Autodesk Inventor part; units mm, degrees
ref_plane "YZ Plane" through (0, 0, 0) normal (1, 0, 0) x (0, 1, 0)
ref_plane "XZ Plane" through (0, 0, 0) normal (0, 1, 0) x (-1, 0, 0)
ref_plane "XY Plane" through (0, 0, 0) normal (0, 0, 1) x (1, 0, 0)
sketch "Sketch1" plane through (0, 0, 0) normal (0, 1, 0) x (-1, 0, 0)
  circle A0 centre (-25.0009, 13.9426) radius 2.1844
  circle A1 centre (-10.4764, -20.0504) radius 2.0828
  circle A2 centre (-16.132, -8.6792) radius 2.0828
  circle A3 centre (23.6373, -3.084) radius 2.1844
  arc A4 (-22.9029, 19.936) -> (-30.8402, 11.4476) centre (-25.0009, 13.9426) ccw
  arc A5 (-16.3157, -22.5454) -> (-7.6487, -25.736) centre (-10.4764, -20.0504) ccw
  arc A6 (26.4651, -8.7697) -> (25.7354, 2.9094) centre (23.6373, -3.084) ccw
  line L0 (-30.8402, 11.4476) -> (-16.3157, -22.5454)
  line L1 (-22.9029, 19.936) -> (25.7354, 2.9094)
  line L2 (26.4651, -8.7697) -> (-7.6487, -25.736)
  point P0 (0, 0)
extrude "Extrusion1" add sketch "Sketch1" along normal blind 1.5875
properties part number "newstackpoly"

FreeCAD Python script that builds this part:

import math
import FreeCAD as App
import Part
import Sketcher
Q = App.Units.Quantity

doc = App.newDocument("Part")
params = doc.addObject("Spreadsheet::Sheet", "Params")
for row, (alias, value) in enumerate([
    ("sketch1_radius", "0.25 in"),
    ("sketch1_diameter", "0.164 in"),
    ("sketch1_diameter2", "0.172 in"),
    ("sketch1_length", "1.5 in"),
    ("pad1_length", "0.0625 in"),
], start=1):
    params.set(f"A{row}", alias)
    params.set(f"B{row}", "=" + value)
    params.setAlias(f"B{row}", alias)

body = doc.addObject("PartDesign::Body", "Body")

sketch1 = body.newObject("Sketcher::SketchObject", "Sketch")
sketch1.AttachmentSupport = (doc.getObject("XZ_Plane"), [""])
sketch1.MapMode = "FlatFace"
sketch1.addGeometry(Part.LineSegment(App.Vector(-25.7, 2.9, 0), App.Vector(22.9, 19.9, 0)), False)
sketch1.addGeometry(Part.ArcOfCircle(Part.Circle(App.Vector(25, 13.9, 0), App.Vector(0, 0, 1), 6.3), math.radians(-23), math.radians(109)), False)
sketch1.addGeometry(Part.LineSegment(App.Vector(30.8, 11.4, 0), App.Vector(16.3, -22.5, 0)), False)
sketch1.addGeometry(Part.ArcOfCircle(Part.Circle(App.Vector(10.5, -20.1, 0), App.Vector(0, 0, 1), 6.3), math.radians(-116), math.radians(-23)), False)
sketch1.addGeometry(Part.LineSegment(App.Vector(7.6, -25.7, 0), App.Vector(-26.5, -8.8, 0)), False)
sketch1.addGeometry(Part.ArcOfCircle(Part.Circle(App.Vector(-23.6, -3.1, 0), App.Vector(0, 0, 1), 6.4), math.radians(109), math.radians(244)), False)
sketch1.addGeometry(Part.Circle(App.Vector(10.5, -20.1, 0), App.Vector(0, 0, 1), 2.1), False)
sketch1.addGeometry(Part.Circle(App.Vector(16.1, -8.7, 0), App.Vector(0, 0, 1), 2.1), False)
sketch1.addGeometry(Part.Circle(App.Vector(-23.6, -3.1, 0), App.Vector(0, 0, 1), 2.2), False)
sketch1.addGeometry(Part.Circle(App.Vector(25, 13.9, 0), App.Vector(0, 0, 1), 2.2), False)
sketch1.addConstraint(Sketcher.Constraint("Tangent", 0, 2, 1, 2))
sketch1.addConstraint(Sketcher.Constraint("Tangent", 1, 1, 2, 1))
sketch1.addConstraint(Sketcher.Constraint("Tangent", 2, 2, 3, 2))
sketch1.addConstraint(Sketcher.Constraint("Tangent", 3, 1, 4, 1))
sketch1.addConstraint(Sketcher.Constraint("Tangent", 4, 2, 5, 2))
sketch1.addConstraint(Sketcher.Constraint("Tangent", 5, 1, 0, 1))
sketch1.addConstraint(Sketcher.Constraint("Coincident", 6, 3, 3, 3))
sketch1.addConstraint(Sketcher.Constraint("Coincident", 8, 3, 5, 3))
sketch1.addConstraint(Sketcher.Constraint("Coincident", 9, 3, 1, 3))
sketch1.addConstraint(Sketcher.Constraint("Equal", 1, 3))
sketch1.addConstraint(Sketcher.Constraint("Equal", 3, 5))
sketch1.addConstraint(Sketcher.Constraint("Equal", 6, 7))
sketch1.addConstraint(Sketcher.Constraint("Equal", 8, 9))
sketch1.addConstraint(Sketcher.Constraint("Radius", 1, Q("0.25 in")))
sketch1.addConstraint(Sketcher.Constraint("Diameter", 6, Q("0.164 in")))
sketch1.addConstraint(Sketcher.Constraint("Diameter", 8, Q("0.172 in")))
sketch1.addConstraint(Sketcher.Constraint("Distance", 4, Q("1.5 in")))
sketch1.addConstraint(Sketcher.Constraint("DistanceY", 7, 3, 1, 3, Q("0.890622 in")))
sketch1.addConstraint(Sketcher.Constraint("DistanceX", 0, 2, 1, 1, Q("0.3125 in")))
sketch1.addConstraint(Sketcher.Constraint("DistanceX", 3, 1, 7, 3, Q("0.334 in")))
sketch1.addConstraint(Sketcher.Constraint("DistanceX", 5, 3, -1, 1, Q("0.9306 in")))
sketch1.addConstraint(Sketcher.Constraint("DistanceY", 7, 3, -1, 1, Q("0.3417 in")))
sketch1.addConstraint(Sketcher.Constraint("DistanceX", -1, 1, 0, 2, Q("0.9017 in")))
sketch1.addConstraint(Sketcher.Constraint("DistanceY", 3, 3, 1, 3, Q("1.3383 in")))
sketch1.setExpression("Constraints[13]", "Params.sketch1_radius")
sketch1.setExpression("Constraints[14]", "Params.sketch1_diameter")
sketch1.setExpression("Constraints[15]", "Params.sketch1_diameter2")
sketch1.setExpression("Constraints[16]", "Params.sketch1_length")
pad1 = body.newObject("PartDesign::Pad", "Pad")
pad1.Profile = sketch1
pad1.setExpression("Length", "Params.pad1_length")
pad1.Reversed = True

doc.recompute()
